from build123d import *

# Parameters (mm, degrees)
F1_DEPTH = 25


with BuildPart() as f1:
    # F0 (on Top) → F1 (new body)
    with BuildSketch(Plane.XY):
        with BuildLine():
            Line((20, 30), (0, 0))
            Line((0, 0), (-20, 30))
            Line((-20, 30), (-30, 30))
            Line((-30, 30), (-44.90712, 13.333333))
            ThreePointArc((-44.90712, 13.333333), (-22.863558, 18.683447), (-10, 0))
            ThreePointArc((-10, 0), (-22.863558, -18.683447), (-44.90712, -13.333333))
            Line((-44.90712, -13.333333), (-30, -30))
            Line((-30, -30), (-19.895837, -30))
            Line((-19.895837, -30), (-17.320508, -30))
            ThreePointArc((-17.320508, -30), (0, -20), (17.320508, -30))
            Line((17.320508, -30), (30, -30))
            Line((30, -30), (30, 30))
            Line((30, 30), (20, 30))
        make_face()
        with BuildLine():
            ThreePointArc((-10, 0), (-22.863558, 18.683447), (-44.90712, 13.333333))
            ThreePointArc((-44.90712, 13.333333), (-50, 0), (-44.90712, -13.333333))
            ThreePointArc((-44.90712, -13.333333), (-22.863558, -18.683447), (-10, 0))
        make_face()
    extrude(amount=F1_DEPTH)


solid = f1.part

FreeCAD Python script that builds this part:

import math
import FreeCAD as App
import Part
import Sketcher

V = App.Vector

doc = App.newDocument("Part")
body = doc.addObject("PartDesign::Body", "Body")

# Sketch on XY plane
sketch1 = doc.addObject("Sketcher::SketchObject", "Sketch")
body.addObject(sketch1)
sketch1.AttachmentSupport = (doc.XY_Plane, [""])
sketch1.MapMode = "FlatFace"
sketch1.addGeometry([
    Part.LineSegment(V(20, 30, 0), V(0, 0, 0)),  # 0
    Part.LineSegment(V(0, 0, 0), V(-20, 30, 0)),  # 1
    Part.LineSegment(V(-20, 30, 0), V(-30, 30, 0)),  # 2
    Part.LineSegment(V(-30, 30, 0), V(-45, 13, 0)),  # 3
    Part.ArcOfCircle(Part.Circle(V(-30, 0, 0), V(0, 0, 1), 20), math.radians(138), math.radians(222)),  # 4
    Part.LineSegment(V(-45, -13, 0), V(-30, -30, 0)),  # 5
    Part.LineSegment(V(-30, -30, 0), V(-17, -30, 0)),  # 6
    Part.ArcOfCircle(Part.Circle(V(0, -40, 0), V(0, 0, 1), 20), math.radians(30), math.radians(150)),  # 7
    Part.LineSegment(V(17, -30, 0), V(30, -30, 0)),  # 8
    Part.LineSegment(V(30, -30, 0), V(30, 30, 0)),  # 9
    Part.LineSegment(V(30, 30, 0), V(20, 30, 0)),  # 10
], False)
sketch1.addConstraint([
    Sketcher.Constraint("Coincident", 0, 2, 1, 1),
    Sketcher.Constraint("Coincident", 1, 2, 2, 1),
    Sketcher.Constraint("Coincident", 2, 2, 3, 1),
    Sketcher.Constraint("Tangent", 3, 2, 4, 1),
    Sketcher.Constraint("Tangent", 4, 2, 5, 1),
    Sketcher.Constraint("Coincident", 5, 2, 6, 1),
    Sketcher.Constraint("Coincident", 6, 2, 7, 2),
    Sketcher.Constraint("Coincident", 7, 1, 8, 1),
    Sketcher.Constraint("Coincident", 8, 2, 9, 1),
    Sketcher.Constraint("Coincident", 9, 2, 10, 1),
    Sketcher.Constraint("Coincident", 10, 2, 0, 1),
    Sketcher.Constraint("Horizontal", 2),
    Sketcher.Constraint("Horizontal", 6),
    Sketcher.Constraint("Horizontal", 8),
    Sketcher.Constraint("Vertical", 9),
    Sketcher.Constraint("Horizontal", 10),
    Sketcher.Constraint("Coincident", 0, 2, -1, 1),
    Sketcher.Constraint("Equal", 4, 7),
    Sketcher.Constraint("Symmetric", 2, 2, 8, 2, -1, 1),
    Sketcher.Constraint("Symmetric", 5, 2, 9, 2, -1, 1),
    Sketcher.Constraint("Symmetric", 6, 2, 7, 1, -2),
    Sketcher.Constraint("PointOnObject", 4, 3, -1),
    Sketcher.Constraint("Vertical", 4, 3, 2, 2),
    Sketcher.Constraint("Equal", 2, 10),
    Sketcher.Constraint("Radius", 4, 20.0),
    Sketcher.Constraint("DistanceX", 2, 2, 2, 1, 10.0),
    Sketcher.Constraint("DistanceY", 9, 1, 9, 2, 60.0),
    Sketcher.Constraint("DistanceX", 4, 3, -1, 1, 30.0),
    Sketcher.Constraint("DistanceY", 7, 3, -1, 1, 40.0),
])
pad1 = doc.addObject("PartDesign::Pad", "Pad")
body.addObject(pad1)
pad1.Profile = sketch1
pad1.Length = 25

doc.recompute()
